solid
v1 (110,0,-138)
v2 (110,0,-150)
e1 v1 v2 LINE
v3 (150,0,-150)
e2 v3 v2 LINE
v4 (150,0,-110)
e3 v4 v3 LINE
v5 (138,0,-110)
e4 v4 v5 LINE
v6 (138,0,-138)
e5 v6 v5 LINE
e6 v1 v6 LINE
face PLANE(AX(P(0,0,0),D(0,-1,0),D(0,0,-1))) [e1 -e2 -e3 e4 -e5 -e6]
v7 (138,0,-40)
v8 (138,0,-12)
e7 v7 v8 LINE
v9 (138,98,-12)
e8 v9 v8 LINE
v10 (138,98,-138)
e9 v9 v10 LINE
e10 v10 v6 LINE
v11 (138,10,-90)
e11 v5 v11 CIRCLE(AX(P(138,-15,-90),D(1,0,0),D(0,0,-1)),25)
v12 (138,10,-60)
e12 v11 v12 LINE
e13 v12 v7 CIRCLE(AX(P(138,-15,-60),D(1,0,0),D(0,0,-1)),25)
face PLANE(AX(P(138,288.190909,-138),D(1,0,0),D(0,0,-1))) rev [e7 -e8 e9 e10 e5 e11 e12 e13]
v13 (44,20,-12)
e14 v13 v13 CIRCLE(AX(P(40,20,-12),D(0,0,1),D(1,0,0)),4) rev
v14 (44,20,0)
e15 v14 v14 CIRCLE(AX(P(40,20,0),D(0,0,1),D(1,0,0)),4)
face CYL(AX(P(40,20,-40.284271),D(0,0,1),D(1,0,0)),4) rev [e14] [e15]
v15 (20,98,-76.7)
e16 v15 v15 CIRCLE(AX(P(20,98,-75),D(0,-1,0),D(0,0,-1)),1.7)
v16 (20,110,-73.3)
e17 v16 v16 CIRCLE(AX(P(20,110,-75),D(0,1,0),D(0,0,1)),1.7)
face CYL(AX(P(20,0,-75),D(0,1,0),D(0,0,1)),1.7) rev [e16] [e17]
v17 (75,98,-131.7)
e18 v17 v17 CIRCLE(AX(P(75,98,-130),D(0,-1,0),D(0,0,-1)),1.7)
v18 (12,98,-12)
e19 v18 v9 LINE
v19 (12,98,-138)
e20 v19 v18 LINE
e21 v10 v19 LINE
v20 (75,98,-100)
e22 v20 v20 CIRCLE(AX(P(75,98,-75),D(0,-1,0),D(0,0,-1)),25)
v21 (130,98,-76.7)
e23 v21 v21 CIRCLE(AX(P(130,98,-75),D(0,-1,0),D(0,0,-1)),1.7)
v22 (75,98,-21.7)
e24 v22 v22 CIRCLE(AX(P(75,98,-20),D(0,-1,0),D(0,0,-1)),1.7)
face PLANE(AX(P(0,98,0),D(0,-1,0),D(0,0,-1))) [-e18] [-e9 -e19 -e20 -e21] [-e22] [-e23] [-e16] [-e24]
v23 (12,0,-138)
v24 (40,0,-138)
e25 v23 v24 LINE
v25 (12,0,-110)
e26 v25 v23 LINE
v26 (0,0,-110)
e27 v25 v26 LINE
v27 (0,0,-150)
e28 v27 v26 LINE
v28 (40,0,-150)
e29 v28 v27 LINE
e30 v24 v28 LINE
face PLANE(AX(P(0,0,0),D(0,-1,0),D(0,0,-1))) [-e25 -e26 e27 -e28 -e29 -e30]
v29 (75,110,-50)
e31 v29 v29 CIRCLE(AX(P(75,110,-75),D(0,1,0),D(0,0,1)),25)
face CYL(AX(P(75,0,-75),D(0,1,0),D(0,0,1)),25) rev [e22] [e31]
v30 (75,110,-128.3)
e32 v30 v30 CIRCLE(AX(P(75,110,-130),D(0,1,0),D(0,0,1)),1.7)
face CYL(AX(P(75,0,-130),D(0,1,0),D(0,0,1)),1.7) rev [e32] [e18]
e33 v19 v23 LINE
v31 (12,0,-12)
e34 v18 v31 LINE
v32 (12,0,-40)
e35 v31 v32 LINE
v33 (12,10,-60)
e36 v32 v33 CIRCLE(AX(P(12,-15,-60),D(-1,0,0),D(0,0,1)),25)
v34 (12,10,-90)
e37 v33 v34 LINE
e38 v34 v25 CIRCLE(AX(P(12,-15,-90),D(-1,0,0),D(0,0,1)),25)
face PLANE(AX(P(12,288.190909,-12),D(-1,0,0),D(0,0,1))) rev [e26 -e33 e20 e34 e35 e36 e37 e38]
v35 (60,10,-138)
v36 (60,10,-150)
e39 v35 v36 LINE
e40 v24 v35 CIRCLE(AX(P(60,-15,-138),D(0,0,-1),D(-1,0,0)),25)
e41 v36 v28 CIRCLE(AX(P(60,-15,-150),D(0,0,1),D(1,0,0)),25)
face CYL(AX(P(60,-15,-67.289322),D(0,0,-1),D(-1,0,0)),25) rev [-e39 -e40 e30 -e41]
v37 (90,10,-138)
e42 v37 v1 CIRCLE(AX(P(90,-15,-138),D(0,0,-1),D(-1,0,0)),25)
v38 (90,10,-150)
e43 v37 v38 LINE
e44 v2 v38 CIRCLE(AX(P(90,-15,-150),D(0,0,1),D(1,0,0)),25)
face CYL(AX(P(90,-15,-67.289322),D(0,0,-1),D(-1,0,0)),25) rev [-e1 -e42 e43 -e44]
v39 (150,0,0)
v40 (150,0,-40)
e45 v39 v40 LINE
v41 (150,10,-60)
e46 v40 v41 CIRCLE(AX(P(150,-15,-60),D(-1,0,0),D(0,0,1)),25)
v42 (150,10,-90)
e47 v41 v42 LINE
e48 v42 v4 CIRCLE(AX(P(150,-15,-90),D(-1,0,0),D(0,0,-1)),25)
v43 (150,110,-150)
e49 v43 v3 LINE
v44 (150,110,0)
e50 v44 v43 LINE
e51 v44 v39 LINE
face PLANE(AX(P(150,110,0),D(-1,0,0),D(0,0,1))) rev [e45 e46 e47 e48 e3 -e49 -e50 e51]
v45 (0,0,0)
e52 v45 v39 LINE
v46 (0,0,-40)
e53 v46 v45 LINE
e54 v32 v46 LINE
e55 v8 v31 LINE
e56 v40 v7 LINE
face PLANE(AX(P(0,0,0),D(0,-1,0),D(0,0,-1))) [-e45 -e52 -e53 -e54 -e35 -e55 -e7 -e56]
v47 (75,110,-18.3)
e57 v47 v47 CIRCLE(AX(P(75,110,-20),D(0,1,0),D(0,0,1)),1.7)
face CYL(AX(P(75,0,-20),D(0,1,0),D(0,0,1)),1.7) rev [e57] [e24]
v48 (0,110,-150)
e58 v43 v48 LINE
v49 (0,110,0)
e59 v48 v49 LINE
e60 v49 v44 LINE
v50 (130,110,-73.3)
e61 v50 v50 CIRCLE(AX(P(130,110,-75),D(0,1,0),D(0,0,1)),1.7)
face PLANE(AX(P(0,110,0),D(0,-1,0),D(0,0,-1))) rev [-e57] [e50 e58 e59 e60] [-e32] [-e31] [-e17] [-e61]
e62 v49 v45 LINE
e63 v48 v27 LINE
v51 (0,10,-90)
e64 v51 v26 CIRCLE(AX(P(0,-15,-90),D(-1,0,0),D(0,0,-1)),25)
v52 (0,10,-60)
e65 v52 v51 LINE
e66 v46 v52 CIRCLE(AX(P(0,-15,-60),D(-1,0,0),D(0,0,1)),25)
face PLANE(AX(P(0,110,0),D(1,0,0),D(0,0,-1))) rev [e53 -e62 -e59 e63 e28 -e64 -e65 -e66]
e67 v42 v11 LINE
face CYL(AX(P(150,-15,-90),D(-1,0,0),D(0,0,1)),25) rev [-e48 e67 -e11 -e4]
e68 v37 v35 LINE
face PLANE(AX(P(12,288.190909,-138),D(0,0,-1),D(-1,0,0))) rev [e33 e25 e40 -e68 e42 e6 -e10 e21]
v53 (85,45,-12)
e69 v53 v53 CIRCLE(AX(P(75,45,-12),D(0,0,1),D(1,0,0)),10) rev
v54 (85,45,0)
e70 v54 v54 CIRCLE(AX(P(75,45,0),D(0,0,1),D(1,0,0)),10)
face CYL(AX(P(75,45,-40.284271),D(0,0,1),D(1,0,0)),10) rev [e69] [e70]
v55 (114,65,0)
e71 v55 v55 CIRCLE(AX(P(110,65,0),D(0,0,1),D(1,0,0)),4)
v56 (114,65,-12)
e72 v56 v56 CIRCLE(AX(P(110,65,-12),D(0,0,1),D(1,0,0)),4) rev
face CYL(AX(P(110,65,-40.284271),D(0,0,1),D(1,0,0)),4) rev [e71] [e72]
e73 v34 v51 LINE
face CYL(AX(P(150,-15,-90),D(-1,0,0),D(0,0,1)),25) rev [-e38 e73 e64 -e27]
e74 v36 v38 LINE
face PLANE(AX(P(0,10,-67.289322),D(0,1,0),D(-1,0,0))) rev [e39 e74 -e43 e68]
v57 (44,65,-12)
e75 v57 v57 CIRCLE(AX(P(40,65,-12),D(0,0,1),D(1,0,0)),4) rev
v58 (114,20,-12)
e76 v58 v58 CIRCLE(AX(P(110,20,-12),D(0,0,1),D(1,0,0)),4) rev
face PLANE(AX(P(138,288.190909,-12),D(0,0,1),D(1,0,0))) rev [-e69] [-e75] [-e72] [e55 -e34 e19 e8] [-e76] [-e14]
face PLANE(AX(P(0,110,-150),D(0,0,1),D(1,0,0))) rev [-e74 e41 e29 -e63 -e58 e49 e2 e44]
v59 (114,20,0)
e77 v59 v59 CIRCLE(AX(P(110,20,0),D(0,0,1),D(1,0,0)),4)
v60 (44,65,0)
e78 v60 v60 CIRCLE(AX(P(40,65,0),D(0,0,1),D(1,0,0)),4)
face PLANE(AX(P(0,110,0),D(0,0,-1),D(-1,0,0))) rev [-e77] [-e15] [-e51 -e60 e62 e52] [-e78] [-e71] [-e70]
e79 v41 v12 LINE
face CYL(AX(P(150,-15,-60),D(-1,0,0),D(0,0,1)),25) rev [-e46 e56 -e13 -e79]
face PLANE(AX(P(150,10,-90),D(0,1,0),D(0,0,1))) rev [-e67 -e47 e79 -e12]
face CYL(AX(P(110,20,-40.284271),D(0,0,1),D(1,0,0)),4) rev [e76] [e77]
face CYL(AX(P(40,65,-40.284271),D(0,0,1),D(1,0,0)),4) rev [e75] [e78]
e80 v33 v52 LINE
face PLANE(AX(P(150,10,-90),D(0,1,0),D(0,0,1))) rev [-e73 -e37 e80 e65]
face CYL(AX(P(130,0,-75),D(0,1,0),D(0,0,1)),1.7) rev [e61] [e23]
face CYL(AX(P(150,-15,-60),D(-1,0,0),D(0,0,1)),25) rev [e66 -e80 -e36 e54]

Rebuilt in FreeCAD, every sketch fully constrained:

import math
import FreeCAD as App
import Part
import Sketcher
from FreeCAD import Vector
Q = App.Units.Quantity


def add_polygon(sketch, points):
    """Adds a closed chain of lines whose ends are joined by coincident constraints."""
    first, n = sketch.GeometryCount, len(points)
    for a, b in zip(points, points[1:] + points[:1]):
        sketch.addGeometry(Part.LineSegment(App.Vector(*a, 0), App.Vector(*b, 0)), False)
    for i in range(n):
        sketch.addConstraint(Sketcher.Constraint("Coincident", first + i, 2, first + (i + 1) % n, 1))

doc = App.newDocument("Part")
body = doc.addObject("PartDesign::Body", "Body")

# Sketch on XZ plane
sketch1 = body.newObject("Sketcher::SketchObject", "Sketch")
sketch1.AttachmentSupport = (doc.getObject("XZ_Plane"), [""])
sketch1.MapMode = "FlatFace"
add_polygon(sketch1, [(0, -150), (0, 0), (150, 0), (150, -150)])  # lines 0-3
sketch1.addConstraint([
    Sketcher.Constraint("Vertical", 0),
    Sketcher.Constraint("Horizontal", 1),
    Sketcher.Constraint("Vertical", 2),
    Sketcher.Constraint("Horizontal", 3),
    Sketcher.Constraint("Coincident", 0, 2, -1, 1),
    Sketcher.Constraint("Equal", 3, 0),
    Sketcher.Constraint("DistanceX", 1, 1, 1, 2, Q("150 mm")),
])
pad1 = body.newObject("PartDesign::Pad", "Pad")
pad1.Profile = sketch1
pad1.Length = 110
pad1.Reversed = True

# Sketch on XZ plane
sketch2 = body.newObject("Sketcher::SketchObject", "Sketch001")
sketch2.AttachmentSupport = (doc.getObject("XZ_Plane"), [""])
sketch2.MapMode = "FlatFace"
add_polygon(sketch2, [(12, -12), (12, -138), (138, -138), (138, -12)])  # lines 0-3
sketch2.addConstraint([
    Sketcher.Constraint("Vertical", 0),
    Sketcher.Constraint("Horizontal", 1),
    Sketcher.Constraint("Vertical", 2),
    Sketcher.Constraint("Horizontal", 3),
    Sketcher.Constraint("Equal", 3, 0),
    Sketcher.Constraint("DistanceX", 1, 1, 1, 2, Q("126 mm")),
    Sketcher.Constraint("DistanceX", -1, 1, 0, 2, Q("12 mm")),
    Sketcher.Constraint("DistanceY", 0, 2, -1, 1, Q("138 mm")),
])
pocket1 = body.newObject("PartDesign::Pocket", "Pocket")
pocket1.Profile = sketch2
pocket1.Length = 98

# Sketch on XZ plane
sketch3 = body.newObject("Sketcher::SketchObject", "Sketch002")
sketch3.AttachmentSupport = (doc.getObject("XZ_Plane"), [""])
sketch3.MapMode = "FlatFace"
sketch3.AttachmentOffset = App.Placement(Vector(0, 0, -110), App.Rotation())
sketch3.addGeometry([
    Part.Circle(Vector(75, -130, 0), Vector(0, 0, 1), 1.7),  # 0
    Part.Circle(Vector(130, -75, 0), Vector(0, 0, 1), 1.7),  # 1
    Part.Circle(Vector(75, -20, 0), Vector(0, 0, 1), 1.7),  # 2
    Part.Circle(Vector(20, -75, 0), Vector(0, 0, 1), 1.7),  # 3
    Part.Circle(Vector(75, -75, 0), Vector(0, 0, 1), 25),  # 4
], False)
sketch3.addConstraint([
    Sketcher.Constraint("Equal", 0, 1),
    Sketcher.Constraint("Equal", 1, 2),
    Sketcher.Constraint("Equal", 2, 3),
    Sketcher.Constraint("Horizontal", 1, 3, 3, 3),
    Sketcher.Constraint("Horizontal", 3, 3, 4, 3),
    Sketcher.Constraint("Vertical", 0, 3, 2, 3),
    Sketcher.Constraint("Vertical", 2, 3, 4, 3),
    Sketcher.Constraint("Diameter", 4, Q("50 mm")),
    Sketcher.Constraint("Diameter", 0, Q("3.4 mm")),
    Sketcher.Constraint("DistanceX", -1, 1, 0, 3, Q("75 mm")),
    Sketcher.Constraint("DistanceY", 0, 3, -1, 1, Q("130 mm")),
    Sketcher.Constraint("DistanceX", -1, 1, 1, 3, Q("130 mm")),
    Sketcher.Constraint("DistanceY", 1, 3, -1, 1, Q("75 mm")),
    Sketcher.Constraint("DistanceY", 2, 3, -1, 1, Q("20 mm")),
    Sketcher.Constraint("DistanceX", -1, 1, 3, 3, Q("20 mm")),
])
pocket2 = body.newObject("PartDesign::Pocket", "Pocket001")
pocket2.Profile = sketch3
pocket2.Type = "ThroughAll"
pocket2.Reversed = True

# Sketch on YZ plane
sketch4 = body.newObject("Sketcher::SketchObject", "Sketch003")
sketch4.AttachmentSupport = (doc.getObject("YZ_Plane"), [""])
sketch4.MapMode = "FlatFace"
sketch4.addGeometry([
    Part.LineSegment(Vector(10, -60, 0), Vector(10, -90, 0)),
    Part.ArcOfCircle(Part.Circle(Vector(-15, -90, 0), Vector(0, 0, 1), 25), math.radians(-53), math.radians(0)),
    Part.LineSegment(Vector(0, -110, 0), Vector(0, -40, 0)),
    Part.ArcOfCircle(Part.Circle(Vector(-15, -60, 0), Vector(0, 0, 1), 25), math.radians(0), math.radians(53)),
], False)
sketch4.addConstraint([
    Sketcher.Constraint("Tangent", 0, 2, 1, 2),
    Sketcher.Constraint("Coincident", 1, 1, 2, 1),
    Sketcher.Constraint("Coincident", 2, 2, 3, 2),
    Sketcher.Constraint("Tangent", 3, 1, 0, 1),
    Sketcher.Constraint("Vertical", 0),
    Sketcher.Constraint("Vertical", 2),
    Sketcher.Constraint("Equal", 1, 3),
    Sketcher.Constraint("PointOnObject", 1, 1, -2),
    Sketcher.Constraint("Radius", 1, Q("25 mm")),
    Sketcher.Constraint("DistanceY", 0, 2, 0, 1, Q("30 mm")),
    Sketcher.Constraint("DistanceY", 2, 1, 2, 2, Q("70 mm")),
    Sketcher.Constraint("DistanceY", 1, 3, -1, 1, Q("90 mm")),
])
pocket3 = body.newObject("PartDesign::Pocket", "Pocket002")
pocket3.Profile = sketch4
pocket3.Type = "ThroughAll"
pocket3.Reversed = True

# Sketch on XY plane
sketch5 = body.newObject("Sketcher::SketchObject", "Sketch004")
sketch5.AttachmentSupport = (doc.getObject("XY_Plane"), [""])
sketch5.MapMode = "FlatFace"
sketch5.AttachmentOffset = App.Placement(Vector(0, 0, -150), App.Rotation())
sketch5.addGeometry([
    Part.LineSegment(Vector(60, 10, 0), Vector(90, 10, 0)),
    Part.ArcOfCircle(Part.Circle(Vector(90, -15, 0), Vector(0, 0, 1), 25), math.radians(37), math.radians(90)),
    Part.LineSegment(Vector(110, 0, 0), Vector(40, 0, 0)),
    Part.ArcOfCircle(Part.Circle(Vector(60, -15, 0), Vector(0, 0, 1), 25), math.radians(90), math.radians(143)),
], False)
sketch5.addConstraint([
    Sketcher.Constraint("Tangent", 0, 2, 1, 2),
    Sketcher.Constraint("Coincident", 1, 1, 2, 1),
    Sketcher.Constraint("Coincident", 2, 2, 3, 2),
    Sketcher.Constraint("Tangent", 3, 1, 0, 1),
    Sketcher.Constraint("Horizontal", 0),
    Sketcher.Constraint("Horizontal", 2),
    Sketcher.Constraint("Equal", 1, 3),
    Sketcher.Constraint("PointOnObject", 1, 1, -1),
    Sketcher.Constraint("Radius", 1, Q("25 mm")),
    Sketcher.Constraint("DistanceX", 0, 1, 0, 2, Q("30 mm")),
    Sketcher.Constraint("DistanceX", 2, 2, 2, 1, Q("70 mm")),
    Sketcher.Constraint("DistanceX", -1, 1, 1, 3, Q("90 mm")),
])
pocket4 = body.newObject("PartDesign::Pocket", "Pocket003")
pocket4.Profile = sketch5
pocket4.Length = 12
pocket4.Reversed = True

# Sketch on XY plane
sketch6 = body.newObject("Sketcher::SketchObject", "Sketch005")
sketch6.AttachmentSupport = (doc.getObject("XY_Plane"), [""])
sketch6.MapMode = "FlatFace"
sketch6.addGeometry([
    Part.Circle(Vector(40, 65, 0), Vector(0, 0, 1), 4),  # 0
    Part.Circle(Vector(75, 45, 0), Vector(0, 0, 1), 10),  # 1
    Part.Circle(Vector(110, 65, 0), Vector(0, 0, 1), 4),  # 2
    Part.Circle(Vector(40, 20, 0), Vector(0, 0, 1), 4),  # 3
    Part.Circle(Vector(110, 20, 0), Vector(0, 0, 1), 4),  # 4
], False)
sketch6.addConstraint([
    Sketcher.Constraint("Equal", 0, 2),
    Sketcher.Constraint("Equal", 2, 3),
    Sketcher.Constraint("Equal", 3, 4),
    Sketcher.Constraint("Horizontal", 0, 3, 2, 3),
    Sketcher.Constraint("Horizontal", 3, 3, 4, 3),
    Sketcher.Constraint("Vertical", 0, 3, 3, 3),
    Sketcher.Constraint("Vertical", 2, 3, 4, 3),
    Sketcher.Constraint("Diameter", 0, Q("8 mm")),
    Sketcher.Constraint("Diameter", 1, Q("20 mm")),
    Sketcher.Constraint("DistanceX", -1, 1, 0, 3, Q("40 mm")),
    Sketcher.Constraint("DistanceY", -1, 1, 0, 3, Q("65 mm")),
    Sketcher.Constraint("DistanceX", -1, 1, 1, 3, Q("75 mm")),
    Sketcher.Constraint("DistanceY", -1, 1, 1, 3, Q("45 mm")),
    Sketcher.Constraint("DistanceX", -1, 1, 2, 3, Q("110 mm")),
    Sketcher.Constraint("DistanceY", -1, 1, 3, 3, Q("20 mm")),
])
pocket5 = body.newObject("PartDesign::Pocket", "Pocket004")
pocket5.Profile = sketch6
pocket5.Length = 12

doc.recompute()
